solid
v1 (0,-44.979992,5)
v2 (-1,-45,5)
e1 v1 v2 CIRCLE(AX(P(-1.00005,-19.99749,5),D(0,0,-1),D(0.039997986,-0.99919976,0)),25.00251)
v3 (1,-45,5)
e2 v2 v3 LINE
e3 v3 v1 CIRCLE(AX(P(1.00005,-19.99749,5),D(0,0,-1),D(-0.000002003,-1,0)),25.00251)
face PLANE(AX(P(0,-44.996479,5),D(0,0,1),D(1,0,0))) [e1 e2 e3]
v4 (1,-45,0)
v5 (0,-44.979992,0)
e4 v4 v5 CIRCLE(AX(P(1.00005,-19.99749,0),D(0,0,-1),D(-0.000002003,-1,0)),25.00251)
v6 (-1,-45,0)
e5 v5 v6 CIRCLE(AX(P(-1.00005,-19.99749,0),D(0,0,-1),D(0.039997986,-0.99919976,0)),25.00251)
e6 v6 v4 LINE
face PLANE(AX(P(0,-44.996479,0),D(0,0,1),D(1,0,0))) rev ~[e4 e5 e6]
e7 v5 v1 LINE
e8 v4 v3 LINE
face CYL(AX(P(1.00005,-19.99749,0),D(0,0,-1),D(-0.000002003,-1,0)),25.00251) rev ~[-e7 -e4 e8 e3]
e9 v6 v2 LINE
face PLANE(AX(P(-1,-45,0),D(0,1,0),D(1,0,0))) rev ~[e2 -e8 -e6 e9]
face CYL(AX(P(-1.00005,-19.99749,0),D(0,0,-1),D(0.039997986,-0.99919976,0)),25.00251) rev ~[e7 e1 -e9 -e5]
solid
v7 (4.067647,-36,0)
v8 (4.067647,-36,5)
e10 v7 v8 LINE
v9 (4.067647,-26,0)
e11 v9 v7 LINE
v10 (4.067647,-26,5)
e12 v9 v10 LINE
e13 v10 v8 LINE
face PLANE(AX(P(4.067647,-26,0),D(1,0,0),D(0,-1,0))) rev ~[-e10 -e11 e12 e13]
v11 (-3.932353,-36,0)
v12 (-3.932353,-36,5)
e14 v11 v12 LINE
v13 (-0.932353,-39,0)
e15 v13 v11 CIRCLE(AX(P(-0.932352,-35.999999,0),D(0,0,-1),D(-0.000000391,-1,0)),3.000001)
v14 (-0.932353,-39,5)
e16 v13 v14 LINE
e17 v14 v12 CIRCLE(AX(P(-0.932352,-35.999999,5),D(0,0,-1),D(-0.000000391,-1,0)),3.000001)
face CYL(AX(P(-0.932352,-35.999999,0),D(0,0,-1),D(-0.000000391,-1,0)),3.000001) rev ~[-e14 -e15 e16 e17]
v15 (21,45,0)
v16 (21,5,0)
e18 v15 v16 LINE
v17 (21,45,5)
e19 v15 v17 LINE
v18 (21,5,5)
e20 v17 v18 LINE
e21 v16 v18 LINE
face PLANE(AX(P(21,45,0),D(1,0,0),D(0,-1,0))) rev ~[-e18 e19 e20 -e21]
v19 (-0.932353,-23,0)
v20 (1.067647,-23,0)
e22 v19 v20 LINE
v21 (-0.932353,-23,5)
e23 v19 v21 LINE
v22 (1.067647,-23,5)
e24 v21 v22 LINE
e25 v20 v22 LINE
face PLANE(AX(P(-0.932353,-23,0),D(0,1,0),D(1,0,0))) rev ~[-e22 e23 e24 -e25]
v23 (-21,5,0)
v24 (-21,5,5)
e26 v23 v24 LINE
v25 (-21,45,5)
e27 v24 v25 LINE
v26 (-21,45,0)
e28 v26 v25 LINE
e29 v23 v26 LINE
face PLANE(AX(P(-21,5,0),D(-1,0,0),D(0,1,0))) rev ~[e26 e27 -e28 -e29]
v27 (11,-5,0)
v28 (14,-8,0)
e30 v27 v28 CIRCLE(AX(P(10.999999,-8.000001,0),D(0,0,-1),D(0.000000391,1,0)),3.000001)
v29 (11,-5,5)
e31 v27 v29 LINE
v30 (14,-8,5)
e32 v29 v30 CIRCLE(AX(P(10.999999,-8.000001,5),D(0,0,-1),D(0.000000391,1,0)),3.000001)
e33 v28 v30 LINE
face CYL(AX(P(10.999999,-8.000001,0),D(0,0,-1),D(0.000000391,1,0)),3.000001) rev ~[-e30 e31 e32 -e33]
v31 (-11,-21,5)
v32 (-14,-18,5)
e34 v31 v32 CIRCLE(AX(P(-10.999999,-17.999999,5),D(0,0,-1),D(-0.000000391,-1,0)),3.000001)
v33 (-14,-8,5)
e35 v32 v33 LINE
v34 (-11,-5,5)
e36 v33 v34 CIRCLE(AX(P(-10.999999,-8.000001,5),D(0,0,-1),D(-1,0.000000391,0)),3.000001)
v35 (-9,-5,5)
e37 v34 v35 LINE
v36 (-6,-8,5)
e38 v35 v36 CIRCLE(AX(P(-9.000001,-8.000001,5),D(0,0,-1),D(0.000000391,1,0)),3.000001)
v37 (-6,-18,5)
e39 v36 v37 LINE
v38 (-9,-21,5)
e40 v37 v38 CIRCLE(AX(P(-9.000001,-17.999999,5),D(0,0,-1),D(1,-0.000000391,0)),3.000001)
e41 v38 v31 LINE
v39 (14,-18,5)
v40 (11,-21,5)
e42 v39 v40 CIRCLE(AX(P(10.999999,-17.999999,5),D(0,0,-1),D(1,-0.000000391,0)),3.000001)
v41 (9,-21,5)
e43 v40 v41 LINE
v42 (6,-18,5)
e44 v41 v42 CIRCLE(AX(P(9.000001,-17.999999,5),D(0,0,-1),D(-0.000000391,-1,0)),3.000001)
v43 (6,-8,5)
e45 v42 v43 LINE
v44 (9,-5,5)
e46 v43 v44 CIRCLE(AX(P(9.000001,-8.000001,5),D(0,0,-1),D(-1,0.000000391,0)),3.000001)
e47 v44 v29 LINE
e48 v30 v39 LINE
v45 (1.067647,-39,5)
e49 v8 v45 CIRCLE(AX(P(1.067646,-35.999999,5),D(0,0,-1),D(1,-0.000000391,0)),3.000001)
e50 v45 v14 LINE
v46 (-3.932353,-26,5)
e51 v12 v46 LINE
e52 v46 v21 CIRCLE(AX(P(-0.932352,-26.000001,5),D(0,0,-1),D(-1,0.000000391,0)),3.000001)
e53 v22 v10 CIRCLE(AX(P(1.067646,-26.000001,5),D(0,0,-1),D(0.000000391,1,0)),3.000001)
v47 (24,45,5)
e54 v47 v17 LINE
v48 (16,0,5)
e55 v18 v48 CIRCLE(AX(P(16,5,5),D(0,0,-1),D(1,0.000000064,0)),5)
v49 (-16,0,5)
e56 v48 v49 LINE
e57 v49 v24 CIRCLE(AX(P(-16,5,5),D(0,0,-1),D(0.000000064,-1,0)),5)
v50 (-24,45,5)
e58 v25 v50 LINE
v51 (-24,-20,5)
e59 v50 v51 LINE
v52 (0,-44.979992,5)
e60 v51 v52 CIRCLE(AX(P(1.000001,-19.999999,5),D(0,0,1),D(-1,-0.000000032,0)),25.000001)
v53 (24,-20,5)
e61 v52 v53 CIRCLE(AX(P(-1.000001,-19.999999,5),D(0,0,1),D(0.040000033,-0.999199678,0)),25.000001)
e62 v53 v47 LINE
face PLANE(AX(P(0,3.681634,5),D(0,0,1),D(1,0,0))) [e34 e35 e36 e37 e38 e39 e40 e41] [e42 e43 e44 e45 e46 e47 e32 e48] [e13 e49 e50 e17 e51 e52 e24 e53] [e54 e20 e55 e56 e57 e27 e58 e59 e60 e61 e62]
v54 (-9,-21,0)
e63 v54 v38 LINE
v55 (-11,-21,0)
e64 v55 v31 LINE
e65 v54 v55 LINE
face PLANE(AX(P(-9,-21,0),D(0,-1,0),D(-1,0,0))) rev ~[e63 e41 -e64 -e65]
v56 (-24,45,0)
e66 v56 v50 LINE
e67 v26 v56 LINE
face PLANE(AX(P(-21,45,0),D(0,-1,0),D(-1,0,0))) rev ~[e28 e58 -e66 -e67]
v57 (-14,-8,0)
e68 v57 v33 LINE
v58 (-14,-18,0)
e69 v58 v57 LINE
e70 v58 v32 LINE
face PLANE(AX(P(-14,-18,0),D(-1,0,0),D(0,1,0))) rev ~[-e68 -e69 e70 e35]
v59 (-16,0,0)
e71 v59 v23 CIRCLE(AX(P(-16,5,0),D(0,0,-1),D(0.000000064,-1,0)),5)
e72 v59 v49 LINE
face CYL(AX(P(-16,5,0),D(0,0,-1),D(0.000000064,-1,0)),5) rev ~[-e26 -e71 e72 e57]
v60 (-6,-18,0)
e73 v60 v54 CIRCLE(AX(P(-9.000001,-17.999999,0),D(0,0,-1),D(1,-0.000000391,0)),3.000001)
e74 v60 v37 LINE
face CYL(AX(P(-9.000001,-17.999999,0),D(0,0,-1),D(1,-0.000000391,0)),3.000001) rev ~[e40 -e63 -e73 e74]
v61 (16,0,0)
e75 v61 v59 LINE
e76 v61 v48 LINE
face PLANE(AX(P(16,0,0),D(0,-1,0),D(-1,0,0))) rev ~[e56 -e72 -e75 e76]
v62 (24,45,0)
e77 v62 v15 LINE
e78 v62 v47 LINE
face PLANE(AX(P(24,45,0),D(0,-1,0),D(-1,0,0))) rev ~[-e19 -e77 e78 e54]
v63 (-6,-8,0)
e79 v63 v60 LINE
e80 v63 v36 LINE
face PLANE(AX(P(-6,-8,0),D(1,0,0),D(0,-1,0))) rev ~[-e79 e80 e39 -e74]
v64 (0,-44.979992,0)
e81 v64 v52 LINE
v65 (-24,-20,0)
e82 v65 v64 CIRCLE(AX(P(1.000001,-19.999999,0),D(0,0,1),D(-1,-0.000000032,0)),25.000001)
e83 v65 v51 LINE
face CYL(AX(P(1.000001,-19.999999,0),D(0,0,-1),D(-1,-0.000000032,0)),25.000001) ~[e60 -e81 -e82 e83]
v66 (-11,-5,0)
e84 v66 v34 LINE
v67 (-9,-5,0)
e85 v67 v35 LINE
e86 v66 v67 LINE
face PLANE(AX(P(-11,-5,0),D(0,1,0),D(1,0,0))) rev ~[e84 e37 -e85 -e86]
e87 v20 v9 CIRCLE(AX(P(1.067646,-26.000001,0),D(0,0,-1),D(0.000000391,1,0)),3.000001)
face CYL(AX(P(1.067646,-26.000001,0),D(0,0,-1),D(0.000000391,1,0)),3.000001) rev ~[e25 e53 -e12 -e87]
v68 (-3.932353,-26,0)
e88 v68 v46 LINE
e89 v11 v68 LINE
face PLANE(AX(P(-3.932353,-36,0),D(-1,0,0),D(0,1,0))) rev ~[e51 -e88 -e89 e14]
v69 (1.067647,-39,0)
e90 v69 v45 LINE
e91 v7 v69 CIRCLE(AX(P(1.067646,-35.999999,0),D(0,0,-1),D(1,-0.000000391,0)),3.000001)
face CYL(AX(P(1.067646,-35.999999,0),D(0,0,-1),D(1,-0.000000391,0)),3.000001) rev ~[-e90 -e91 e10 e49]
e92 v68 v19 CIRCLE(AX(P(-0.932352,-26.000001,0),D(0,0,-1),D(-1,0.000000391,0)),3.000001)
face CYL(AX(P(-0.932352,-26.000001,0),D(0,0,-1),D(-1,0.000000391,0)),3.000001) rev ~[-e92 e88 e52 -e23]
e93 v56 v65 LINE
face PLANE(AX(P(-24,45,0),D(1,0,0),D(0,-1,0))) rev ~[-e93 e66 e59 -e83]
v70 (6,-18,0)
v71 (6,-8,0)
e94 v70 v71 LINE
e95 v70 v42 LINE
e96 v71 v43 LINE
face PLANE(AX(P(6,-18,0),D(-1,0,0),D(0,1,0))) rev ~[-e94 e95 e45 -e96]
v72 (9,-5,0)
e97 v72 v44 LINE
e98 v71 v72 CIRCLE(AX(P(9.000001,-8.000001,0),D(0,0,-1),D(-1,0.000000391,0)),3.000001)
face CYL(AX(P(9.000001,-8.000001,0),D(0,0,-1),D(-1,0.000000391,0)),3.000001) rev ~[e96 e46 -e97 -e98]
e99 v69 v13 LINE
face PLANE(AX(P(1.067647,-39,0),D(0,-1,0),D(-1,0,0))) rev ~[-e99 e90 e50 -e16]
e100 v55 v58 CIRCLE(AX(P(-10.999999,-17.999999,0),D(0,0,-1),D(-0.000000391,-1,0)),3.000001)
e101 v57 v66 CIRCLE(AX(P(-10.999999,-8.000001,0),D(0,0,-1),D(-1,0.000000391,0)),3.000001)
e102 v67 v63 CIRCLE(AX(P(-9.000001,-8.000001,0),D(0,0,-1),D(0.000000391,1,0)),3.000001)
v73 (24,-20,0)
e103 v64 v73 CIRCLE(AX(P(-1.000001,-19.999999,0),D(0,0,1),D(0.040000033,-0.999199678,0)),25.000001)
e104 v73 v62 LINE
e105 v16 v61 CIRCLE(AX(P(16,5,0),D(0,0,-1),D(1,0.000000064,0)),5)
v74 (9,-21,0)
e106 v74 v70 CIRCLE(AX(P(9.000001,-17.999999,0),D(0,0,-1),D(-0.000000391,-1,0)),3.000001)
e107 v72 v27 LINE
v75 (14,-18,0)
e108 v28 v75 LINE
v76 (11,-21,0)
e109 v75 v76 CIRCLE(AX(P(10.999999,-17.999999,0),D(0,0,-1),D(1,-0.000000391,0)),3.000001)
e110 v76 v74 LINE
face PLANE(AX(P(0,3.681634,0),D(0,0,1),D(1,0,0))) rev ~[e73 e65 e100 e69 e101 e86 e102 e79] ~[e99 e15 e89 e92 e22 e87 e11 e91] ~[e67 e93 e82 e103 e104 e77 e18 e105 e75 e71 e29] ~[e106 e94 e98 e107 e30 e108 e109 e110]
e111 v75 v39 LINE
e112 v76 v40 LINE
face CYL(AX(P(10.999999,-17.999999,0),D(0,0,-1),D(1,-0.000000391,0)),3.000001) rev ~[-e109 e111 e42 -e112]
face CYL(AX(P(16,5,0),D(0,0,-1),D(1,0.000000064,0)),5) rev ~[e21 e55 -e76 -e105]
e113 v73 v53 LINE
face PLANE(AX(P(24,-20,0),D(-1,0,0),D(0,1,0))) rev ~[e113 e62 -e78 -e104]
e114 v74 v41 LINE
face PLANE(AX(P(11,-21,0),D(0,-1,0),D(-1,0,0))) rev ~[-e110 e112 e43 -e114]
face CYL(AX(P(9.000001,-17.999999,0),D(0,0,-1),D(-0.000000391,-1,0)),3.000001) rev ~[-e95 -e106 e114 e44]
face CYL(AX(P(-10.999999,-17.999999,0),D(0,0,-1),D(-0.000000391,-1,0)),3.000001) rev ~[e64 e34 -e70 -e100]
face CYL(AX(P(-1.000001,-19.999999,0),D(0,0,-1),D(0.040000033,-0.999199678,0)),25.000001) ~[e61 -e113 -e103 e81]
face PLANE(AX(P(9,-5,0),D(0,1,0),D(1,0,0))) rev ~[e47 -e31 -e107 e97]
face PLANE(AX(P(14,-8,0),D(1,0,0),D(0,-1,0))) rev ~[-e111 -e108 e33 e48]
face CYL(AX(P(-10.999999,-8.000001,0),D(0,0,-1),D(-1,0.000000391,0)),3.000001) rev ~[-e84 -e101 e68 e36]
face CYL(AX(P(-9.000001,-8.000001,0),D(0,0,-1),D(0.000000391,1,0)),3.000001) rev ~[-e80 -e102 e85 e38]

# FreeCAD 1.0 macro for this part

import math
import FreeCAD as App
import Part
import Sketcher

V = App.Vector
Q = App.Units.Quantity

doc = App.newDocument("Part")
body = doc.addObject("PartDesign::Body", "Body")
body.AllowCompound = True

# Sketch on XY plane
sketch1 = body.newObject("Sketcher::SketchObject", "Sketch")
sketch1.AttachmentSupport = (doc.getObject("XY_Plane"), [""])
sketch1.MapMode = "FlatFace"
sketch1.addGeometry([
    Part.ArcOfCircle(Part.Circle(V(1.00005, -19.99749, 0), V(0, 0, 1), 25.00251), math.radians(-92.292327), math.radians(-90.000115)),  # 0
    Part.ArcOfCircle(Part.Circle(V(-1.00005, -19.99749, 0), V(0, 0, 1), 25.00251), math.radians(-89.999885), math.radians(-87.707673)),  # 1
    Part.LineSegment(V(-1, -45, 0), V(1, -45, 0)),  # 2
    Part.LineSegment(V(-21, 45, 0), V(-24, 45, 0)),  # 3
    Part.LineSegment(V(-24, 45, 0), V(-24, -20, 0)),  # 4
    Part.ArcOfCircle(Part.Circle(V(1.000001, -19.999999, 0), V(0, 0, 1), 25.000001), math.radians(-179.999998), math.radians(-92.292445)),  # 5
    Part.ArcOfCircle(Part.Circle(V(-1.000001, -19.999999, 0), V(0, 0, 1), 25.000001), math.radians(-87.707555), math.radians(-0.000002)),  # 6
    Part.LineSegment(V(24, -20, 0), V(24, 45, 0)),  # 7
    Part.LineSegment(V(24, 45, 0), V(21, 45, 0)),  # 8
    Part.LineSegment(V(21, 45, 0), V(21, 5, 0)),  # 9
    Part.ArcOfCircle(Part.Circle(V(16, 5, 0), V(0, 0, 1), 5), math.radians(-90.000004), math.radians(0.000004)),  # 10
    Part.LineSegment(V(16, 0, 0), V(-16, 0, 0)),  # 11
    Part.ArcOfCircle(Part.Circle(V(-16, 5, 0), V(0, 0, 1), 5), math.radians(179.999996), math.radians(270.000004)),  # 12
    Part.LineSegment(V(-21, 5, 0), V(-21, 45, 0)),  # 13
    Part.LineSegment(V(-3.932353, -36, 0), V(-3.932353, -26, 0)),  # 14
    Part.ArcOfCircle(Part.Circle(V(-0.932352, -26.000001, 0), V(0, 0, 1), 3.000001), math.radians(90.000022), math.radians(179.999978)),  # 15
    Part.LineSegment(V(-0.932353, -23, 0), V(1.067647, -23, 0)),  # 16
    Part.ArcOfCircle(Part.Circle(V(1.067646, -26.000001, 0), V(0, 0, 1), 3.000001), math.radians(0.000022), math.radians(89.999978)),  # 17
    Part.LineSegment(V(4.067647, -26, 0), V(4.067647, -36, 0)),  # 18
    Part.ArcOfCircle(Part.Circle(V(1.067646, -35.999999, 0), V(0, 0, 1), 3.000001), math.radians(-89.999978), math.radians(-0.000022)),  # 19
    Part.LineSegment(V(1.067647, -39, 0), V(-0.932353, -39, 0)),  # 20
    Part.ArcOfCircle(Part.Circle(V(-0.932352, -35.999999, 0), V(0, 0, 1), 3.000001), math.radians(-179.999978), math.radians(-90.000022)),  # 21
    Part.LineSegment(V(-14, -18, 0), V(-14, -8, 0)),  # 22
    Part.ArcOfCircle(Part.Circle(V(-10.999999, -8.000001, 0), V(0, 0, 1), 3.000001), math.radians(90.000022), math.radians(179.999978)),  # 23
    Part.LineSegment(V(-11, -5, 0), V(-9, -5, 0)),  # 24
    Part.ArcOfCircle(Part.Circle(V(-9.000001, -8.000001, 0), V(0, 0, 1), 3.000001), math.radians(0.000022), math.radians(89.999978)),  # 25
    Part.LineSegment(V(-6, -8, 0), V(-6, -18, 0)),  # 26
    Part.ArcOfCircle(Part.Circle(V(-9.000001, -17.999999, 0), V(0, 0, 1), 3.000001), math.radians(-89.999978), math.radians(-0.000022)),  # 27
    Part.LineSegment(V(-9, -21, 0), V(-11, -21, 0)),  # 28
    Part.ArcOfCircle(Part.Circle(V(-10.999999, -17.999999, 0), V(0, 0, 1), 3.000001), math.radians(-179.999978), math.radians(-90.000022)),  # 29
    Part.ArcOfCircle(Part.Circle(V(9.000001, -17.999999, 0), V(0, 0, 1), 3.000001), math.radians(-179.999978), math.radians(-90.000022)),  # 30
    Part.LineSegment(V(6, -18, 0), V(6, -8, 0)),  # 31
    Part.ArcOfCircle(Part.Circle(V(9.000001, -8.000001, 0), V(0, 0, 1), 3.000001), math.radians(90.000022), math.radians(179.999978)),  # 32
    Part.LineSegment(V(9, -5, 0), V(11, -5, 0)),  # 33
    Part.ArcOfCircle(Part.Circle(V(10.999999, -8.000001, 0), V(0, 0, 1), 3.000001), math.radians(0.000022), math.radians(89.999978)),  # 34
    Part.LineSegment(V(14, -8, 0), V(14, -18, 0)),  # 35
    Part.ArcOfCircle(Part.Circle(V(10.999999, -17.999999, 0), V(0, 0, 1), 3.000001), math.radians(-89.999978), math.radians(-0.000022)),  # 36
    Part.LineSegment(V(11, -21, 0), V(9, -21, 0)),  # 37
], False)
sketch1.addConstraint([
    Sketcher.Constraint("Coincident", 0, 1, 1, 2),
    Sketcher.Constraint("Coincident", 1, 1, 2, 1),
    Sketcher.Constraint("Coincident", 2, 2, 0, 2),
    Sketcher.Constraint("Coincident", 3, 2, 4, 1),
    Sketcher.Constraint("Coincident", 4, 2, 5, 1),
    Sketcher.Constraint("Coincident", 5, 2, 6, 1),
    Sketcher.Constraint("Coincident", 6, 2, 7, 1),
    Sketcher.Constraint("Coincident", 7, 2, 8, 1),
    Sketcher.Constraint("Coincident", 8, 2, 9, 1),
    Sketcher.Constraint("Coincident", 9, 2, 10, 2),
    Sketcher.Constraint("Coincident", 10, 1, 11, 1),
    Sketcher.Constraint("Coincident", 11, 2, 12, 2),
    Sketcher.Constraint("Coincident", 12, 1, 13, 1),
    Sketcher.Constraint("Coincident", 13, 2, 3, 1),
    Sketcher.Constraint("Coincident", 14, 2, 15, 2),
    Sketcher.Constraint("Coincident", 15, 1, 16, 1),
    Sketcher.Constraint("Coincident", 16, 2, 17, 2),
    Sketcher.Constraint("Coincident", 17, 1, 18, 1),
    Sketcher.Constraint("Coincident", 18, 2, 19, 2),
    Sketcher.Constraint("Coincident", 19, 1, 20, 1),
    Sketcher.Constraint("Coincident", 20, 2, 21, 2),
    Sketcher.Constraint("Coincident", 21, 1, 14, 1),
    Sketcher.Constraint("Coincident", 22, 2, 23, 2),
    Sketcher.Constraint("Coincident", 23, 1, 24, 1),
    Sketcher.Constraint("Coincident", 24, 2, 25, 2),
    Sketcher.Constraint("Coincident", 25, 1, 26, 1),
    Sketcher.Constraint("Coincident", 26, 2, 27, 2),
    Sketcher.Constraint("Coincident", 27, 1, 28, 1),
    Sketcher.Constraint("Coincident", 28, 2, 29, 2),
    Sketcher.Constraint("Coincident", 29, 1, 22, 1),
    Sketcher.Constraint("Coincident", 30, 1, 31, 1),
    Sketcher.Constraint("Coincident", 31, 2, 32, 2),
    Sketcher.Constraint("Coincident", 32, 1, 33, 1),
    Sketcher.Constraint("Coincident", 33, 2, 34, 2),
    Sketcher.Constraint("Coincident", 34, 1, 35, 1),
    Sketcher.Constraint("Coincident", 35, 2, 36, 2),
    Sketcher.Constraint("Coincident", 36, 1, 37, 1),
    Sketcher.Constraint("Coincident", 37, 2, 30, 2),
    Sketcher.Constraint("Horizontal", 2),
    Sketcher.Constraint("Horizontal", 3),
    Sketcher.Constraint("Vertical", 4),
    Sketcher.Constraint("Vertical", 7),
    Sketcher.Constraint("Horizontal", 8),
    Sketcher.Constraint("Vertical", 9),
    Sketcher.Constraint("Horizontal", 11),
    Sketcher.Constraint("Vertical", 13),
    Sketcher.Constraint("Vertical", 14),
    Sketcher.Constraint("Horizontal", 16),
    Sketcher.Constraint("Vertical", 18),
    Sketcher.Constraint("Horizontal", 20),
    Sketcher.Constraint("Vertical", 22),
    Sketcher.Constraint("Horizontal", 24),
    Sketcher.Constraint("Vertical", 26),
    Sketcher.Constraint("Horizontal", 28),
    Sketcher.Constraint("Vertical", 31),
    Sketcher.Constraint("Horizontal", 33),
    Sketcher.Constraint("Vertical", 35),
    Sketcher.Constraint("Horizontal", 37),
    Sketcher.Constraint("Coincident", 5, 2, 0, 1),
    Sketcher.Constraint("PointOnObject", 0, 1, -2),
    Sketcher.Constraint("PointOnObject", 10, 1, -1),
    Sketcher.Constraint("Radius", 5, Q("25.000001 mm")),
    Sketcher.Constraint("Radius", 6, Q("25.000001 mm")),
    Sketcher.Constraint("Radius", 10, Q("5 mm")),
    Sketcher.Constraint("Radius", 12, Q("5 mm")),
    Sketcher.Constraint("Radius", 15, Q("3.000001 mm")),
    Sketcher.Constraint("Radius", 17, Q("3.000001 mm")),
    Sketcher.Constraint("Radius", 19, Q("3.000001 mm")),
    Sketcher.Constraint("Radius", 21, Q("3.000001 mm")),
    Sketcher.Constraint("Radius", 23, Q("3.000001 mm")),
    Sketcher.Constraint("Radius", 25, Q("3.000001 mm")),
    Sketcher.Constraint("Radius", 27, Q("3.000001 mm")),
    Sketcher.Constraint("Radius", 29, Q("3.000001 mm")),
    Sketcher.Constraint("Radius", 30, Q("3.000001 mm")),
    Sketcher.Constraint("Radius", 32, Q("3.000001 mm")),
    Sketcher.Constraint("Radius", 34, Q("3.000001 mm")),
    Sketcher.Constraint("Radius", 36, Q("3.000001 mm")),
    Sketcher.Constraint("DistanceX", 2, 1, 2, 2, Q("2 mm")),
    Sketcher.Constraint("DistanceX", 3, 2, 3, 1, Q("3 mm")),
    Sketcher.Constraint("DistanceX", 8, 2, 8, 1, Q("3 mm")),
    Sketcher.Constraint("DistanceX", 11, 2, 11, 1, Q("32 mm")),
    Sketcher.Constraint("DistanceX", 16, 1, 16, 2, Q("2 mm")),
    Sketcher.Constraint("DistanceX", 20, 2, 20, 1, Q("2 mm")),
    Sketcher.Constraint("DistanceX", 24, 1, 24, 2, Q("2 mm")),
    Sketcher.Constraint("DistanceX", 28, 2, 28, 1, Q("2 mm")),
    Sketcher.Constraint("DistanceX", 33, 1, 33, 2, Q("2 mm")),
    Sketcher.Constraint("DistanceX", 37, 2, 37, 1, Q("2 mm")),
    Sketcher.Constraint("DistanceY", 4, 2, 4, 1, Q("65 mm")),
    Sketcher.Constraint("DistanceY", 7, 1, 7, 2, Q("65 mm")),
    Sketcher.Constraint("DistanceY", 9, 2, 9, 1, Q("40 mm")),
    Sketcher.Constraint("DistanceY", 13, 1, 13, 2, Q("40 mm")),
    Sketcher.Constraint("DistanceY", 14, 1, 14, 2, Q("10 mm")),
    Sketcher.Constraint("DistanceY", 18, 2, 18, 1, Q("10 mm")),
    Sketcher.Constraint("DistanceY", 22, 1, 22, 2, Q("10 mm")),
    Sketcher.Constraint("DistanceY", 26, 2, 26, 1, Q("10 mm")),
    Sketcher.Constraint("DistanceY", 31, 1, 31, 2, Q("10 mm")),
    Sketcher.Constraint("DistanceY", 35, 2, 35, 1, Q("10 mm")),
    Sketcher.Constraint("DistanceX", -1, 1, 5, 3, Q("1.000001 mm")),
    Sketcher.Constraint("DistanceY", 5, 3, -1, 1, Q("19.999999 mm")),
    Sketcher.Constraint("DistanceX", 6, 3, -1, 1, Q("1.000001 mm")),
    Sketcher.Constraint("DistanceY", 15, 3, -1, 1, Q("26.000001 mm")),
    Sketcher.Constraint("DistanceY", 19, 3, -1, 1, Q("35.999999 mm")),
    Sketcher.Constraint("DistanceX", 23, 3, -1, 1, Q("10.999999 mm")),
    Sketcher.Constraint("DistanceY", 23, 3, -1, 1, Q("8.000001 mm")),
    Sketcher.Constraint("DistanceX", 25, 3, -1, 1, Q("9.000001 mm")),
    Sketcher.Constraint("DistanceY", 27, 3, -1, 1, Q("17.999999 mm")),
    Sketcher.Constraint("DistanceX", -1, 1, 30, 3, Q("9.000001 mm")),
    Sketcher.Constraint("DistanceY", 30, 3, -1, 1, Q("17.999999 mm")),
    Sketcher.Constraint("DistanceY", 32, 3, -1, 1, Q("8.000001 mm")),
    Sketcher.Constraint("DistanceX", -1, 1, 34, 3, Q("10.999999 mm")),
    Sketcher.Constraint("DistanceX", 1, 1, -1, 1, Q("1 mm")),
    Sketcher.Constraint("DistanceY", 1, 1, -1, 1, Q("45 mm")),
    Sketcher.Constraint("DistanceY", -1, 1, 3, 2, Q("45 mm")),
    Sketcher.Constraint("DistanceY", 6, 2, -1, 1, Q("20 mm")),
    Sketcher.Constraint("DistanceX", -1, 1, 10, 1, Q("16 mm")),
    Sketcher.Constraint("DistanceY", 14, 2, -1, 1, Q("26 mm")),
    Sketcher.Constraint("DistanceY", 17, 1, -1, 1, Q("26 mm")),
    Sketcher.Constraint("DistanceY", 22, 2, -1, 1, Q("8 mm")),
    Sketcher.Constraint("DistanceX", 23, 1, -1, 1, Q("11 mm")),
    Sketcher.Constraint("DistanceY", 25, 1, -1, 1, Q("8 mm")),
    Sketcher.Constraint("DistanceX", 27, 1, -1, 1, Q("9 mm")),
    Sketcher.Constraint("DistanceY", 30, 1, -1, 1, Q("18 mm")),
    Sketcher.Constraint("DistanceX", -1, 1, 32, 1, Q("9 mm")),
    Sketcher.Constraint("DistanceY", 34, 1, -1, 1, Q("8 mm")),
    Sketcher.Constraint("DistanceX", -1, 1, 36, 1, Q("11 mm")),
    Sketcher.Constraint("DistanceX", 14, 2, 17, 3, Q("4.999999 mm")),
    Sketcher.Constraint("DistanceX", 15, 3, 16, 2, Q("1.999999 mm")),
    Sketcher.Constraint("DistanceX", 21, 3, 19, 1, Q("1.999999 mm")),
    Sketcher.Constraint("Radius", 0, Q("25.00251 mm")),
    Sketcher.Constraint("Radius", 1, Q("25.00251 mm")),
    Sketcher.Constraint("DistanceX", 1, 3, 15, 3, Q("0.067698 mm")),
])
pad1 = body.newObject("PartDesign::Pad", "Pad")
pad1.Profile = sketch1
pad1.Length = 5

doc.recompute()
